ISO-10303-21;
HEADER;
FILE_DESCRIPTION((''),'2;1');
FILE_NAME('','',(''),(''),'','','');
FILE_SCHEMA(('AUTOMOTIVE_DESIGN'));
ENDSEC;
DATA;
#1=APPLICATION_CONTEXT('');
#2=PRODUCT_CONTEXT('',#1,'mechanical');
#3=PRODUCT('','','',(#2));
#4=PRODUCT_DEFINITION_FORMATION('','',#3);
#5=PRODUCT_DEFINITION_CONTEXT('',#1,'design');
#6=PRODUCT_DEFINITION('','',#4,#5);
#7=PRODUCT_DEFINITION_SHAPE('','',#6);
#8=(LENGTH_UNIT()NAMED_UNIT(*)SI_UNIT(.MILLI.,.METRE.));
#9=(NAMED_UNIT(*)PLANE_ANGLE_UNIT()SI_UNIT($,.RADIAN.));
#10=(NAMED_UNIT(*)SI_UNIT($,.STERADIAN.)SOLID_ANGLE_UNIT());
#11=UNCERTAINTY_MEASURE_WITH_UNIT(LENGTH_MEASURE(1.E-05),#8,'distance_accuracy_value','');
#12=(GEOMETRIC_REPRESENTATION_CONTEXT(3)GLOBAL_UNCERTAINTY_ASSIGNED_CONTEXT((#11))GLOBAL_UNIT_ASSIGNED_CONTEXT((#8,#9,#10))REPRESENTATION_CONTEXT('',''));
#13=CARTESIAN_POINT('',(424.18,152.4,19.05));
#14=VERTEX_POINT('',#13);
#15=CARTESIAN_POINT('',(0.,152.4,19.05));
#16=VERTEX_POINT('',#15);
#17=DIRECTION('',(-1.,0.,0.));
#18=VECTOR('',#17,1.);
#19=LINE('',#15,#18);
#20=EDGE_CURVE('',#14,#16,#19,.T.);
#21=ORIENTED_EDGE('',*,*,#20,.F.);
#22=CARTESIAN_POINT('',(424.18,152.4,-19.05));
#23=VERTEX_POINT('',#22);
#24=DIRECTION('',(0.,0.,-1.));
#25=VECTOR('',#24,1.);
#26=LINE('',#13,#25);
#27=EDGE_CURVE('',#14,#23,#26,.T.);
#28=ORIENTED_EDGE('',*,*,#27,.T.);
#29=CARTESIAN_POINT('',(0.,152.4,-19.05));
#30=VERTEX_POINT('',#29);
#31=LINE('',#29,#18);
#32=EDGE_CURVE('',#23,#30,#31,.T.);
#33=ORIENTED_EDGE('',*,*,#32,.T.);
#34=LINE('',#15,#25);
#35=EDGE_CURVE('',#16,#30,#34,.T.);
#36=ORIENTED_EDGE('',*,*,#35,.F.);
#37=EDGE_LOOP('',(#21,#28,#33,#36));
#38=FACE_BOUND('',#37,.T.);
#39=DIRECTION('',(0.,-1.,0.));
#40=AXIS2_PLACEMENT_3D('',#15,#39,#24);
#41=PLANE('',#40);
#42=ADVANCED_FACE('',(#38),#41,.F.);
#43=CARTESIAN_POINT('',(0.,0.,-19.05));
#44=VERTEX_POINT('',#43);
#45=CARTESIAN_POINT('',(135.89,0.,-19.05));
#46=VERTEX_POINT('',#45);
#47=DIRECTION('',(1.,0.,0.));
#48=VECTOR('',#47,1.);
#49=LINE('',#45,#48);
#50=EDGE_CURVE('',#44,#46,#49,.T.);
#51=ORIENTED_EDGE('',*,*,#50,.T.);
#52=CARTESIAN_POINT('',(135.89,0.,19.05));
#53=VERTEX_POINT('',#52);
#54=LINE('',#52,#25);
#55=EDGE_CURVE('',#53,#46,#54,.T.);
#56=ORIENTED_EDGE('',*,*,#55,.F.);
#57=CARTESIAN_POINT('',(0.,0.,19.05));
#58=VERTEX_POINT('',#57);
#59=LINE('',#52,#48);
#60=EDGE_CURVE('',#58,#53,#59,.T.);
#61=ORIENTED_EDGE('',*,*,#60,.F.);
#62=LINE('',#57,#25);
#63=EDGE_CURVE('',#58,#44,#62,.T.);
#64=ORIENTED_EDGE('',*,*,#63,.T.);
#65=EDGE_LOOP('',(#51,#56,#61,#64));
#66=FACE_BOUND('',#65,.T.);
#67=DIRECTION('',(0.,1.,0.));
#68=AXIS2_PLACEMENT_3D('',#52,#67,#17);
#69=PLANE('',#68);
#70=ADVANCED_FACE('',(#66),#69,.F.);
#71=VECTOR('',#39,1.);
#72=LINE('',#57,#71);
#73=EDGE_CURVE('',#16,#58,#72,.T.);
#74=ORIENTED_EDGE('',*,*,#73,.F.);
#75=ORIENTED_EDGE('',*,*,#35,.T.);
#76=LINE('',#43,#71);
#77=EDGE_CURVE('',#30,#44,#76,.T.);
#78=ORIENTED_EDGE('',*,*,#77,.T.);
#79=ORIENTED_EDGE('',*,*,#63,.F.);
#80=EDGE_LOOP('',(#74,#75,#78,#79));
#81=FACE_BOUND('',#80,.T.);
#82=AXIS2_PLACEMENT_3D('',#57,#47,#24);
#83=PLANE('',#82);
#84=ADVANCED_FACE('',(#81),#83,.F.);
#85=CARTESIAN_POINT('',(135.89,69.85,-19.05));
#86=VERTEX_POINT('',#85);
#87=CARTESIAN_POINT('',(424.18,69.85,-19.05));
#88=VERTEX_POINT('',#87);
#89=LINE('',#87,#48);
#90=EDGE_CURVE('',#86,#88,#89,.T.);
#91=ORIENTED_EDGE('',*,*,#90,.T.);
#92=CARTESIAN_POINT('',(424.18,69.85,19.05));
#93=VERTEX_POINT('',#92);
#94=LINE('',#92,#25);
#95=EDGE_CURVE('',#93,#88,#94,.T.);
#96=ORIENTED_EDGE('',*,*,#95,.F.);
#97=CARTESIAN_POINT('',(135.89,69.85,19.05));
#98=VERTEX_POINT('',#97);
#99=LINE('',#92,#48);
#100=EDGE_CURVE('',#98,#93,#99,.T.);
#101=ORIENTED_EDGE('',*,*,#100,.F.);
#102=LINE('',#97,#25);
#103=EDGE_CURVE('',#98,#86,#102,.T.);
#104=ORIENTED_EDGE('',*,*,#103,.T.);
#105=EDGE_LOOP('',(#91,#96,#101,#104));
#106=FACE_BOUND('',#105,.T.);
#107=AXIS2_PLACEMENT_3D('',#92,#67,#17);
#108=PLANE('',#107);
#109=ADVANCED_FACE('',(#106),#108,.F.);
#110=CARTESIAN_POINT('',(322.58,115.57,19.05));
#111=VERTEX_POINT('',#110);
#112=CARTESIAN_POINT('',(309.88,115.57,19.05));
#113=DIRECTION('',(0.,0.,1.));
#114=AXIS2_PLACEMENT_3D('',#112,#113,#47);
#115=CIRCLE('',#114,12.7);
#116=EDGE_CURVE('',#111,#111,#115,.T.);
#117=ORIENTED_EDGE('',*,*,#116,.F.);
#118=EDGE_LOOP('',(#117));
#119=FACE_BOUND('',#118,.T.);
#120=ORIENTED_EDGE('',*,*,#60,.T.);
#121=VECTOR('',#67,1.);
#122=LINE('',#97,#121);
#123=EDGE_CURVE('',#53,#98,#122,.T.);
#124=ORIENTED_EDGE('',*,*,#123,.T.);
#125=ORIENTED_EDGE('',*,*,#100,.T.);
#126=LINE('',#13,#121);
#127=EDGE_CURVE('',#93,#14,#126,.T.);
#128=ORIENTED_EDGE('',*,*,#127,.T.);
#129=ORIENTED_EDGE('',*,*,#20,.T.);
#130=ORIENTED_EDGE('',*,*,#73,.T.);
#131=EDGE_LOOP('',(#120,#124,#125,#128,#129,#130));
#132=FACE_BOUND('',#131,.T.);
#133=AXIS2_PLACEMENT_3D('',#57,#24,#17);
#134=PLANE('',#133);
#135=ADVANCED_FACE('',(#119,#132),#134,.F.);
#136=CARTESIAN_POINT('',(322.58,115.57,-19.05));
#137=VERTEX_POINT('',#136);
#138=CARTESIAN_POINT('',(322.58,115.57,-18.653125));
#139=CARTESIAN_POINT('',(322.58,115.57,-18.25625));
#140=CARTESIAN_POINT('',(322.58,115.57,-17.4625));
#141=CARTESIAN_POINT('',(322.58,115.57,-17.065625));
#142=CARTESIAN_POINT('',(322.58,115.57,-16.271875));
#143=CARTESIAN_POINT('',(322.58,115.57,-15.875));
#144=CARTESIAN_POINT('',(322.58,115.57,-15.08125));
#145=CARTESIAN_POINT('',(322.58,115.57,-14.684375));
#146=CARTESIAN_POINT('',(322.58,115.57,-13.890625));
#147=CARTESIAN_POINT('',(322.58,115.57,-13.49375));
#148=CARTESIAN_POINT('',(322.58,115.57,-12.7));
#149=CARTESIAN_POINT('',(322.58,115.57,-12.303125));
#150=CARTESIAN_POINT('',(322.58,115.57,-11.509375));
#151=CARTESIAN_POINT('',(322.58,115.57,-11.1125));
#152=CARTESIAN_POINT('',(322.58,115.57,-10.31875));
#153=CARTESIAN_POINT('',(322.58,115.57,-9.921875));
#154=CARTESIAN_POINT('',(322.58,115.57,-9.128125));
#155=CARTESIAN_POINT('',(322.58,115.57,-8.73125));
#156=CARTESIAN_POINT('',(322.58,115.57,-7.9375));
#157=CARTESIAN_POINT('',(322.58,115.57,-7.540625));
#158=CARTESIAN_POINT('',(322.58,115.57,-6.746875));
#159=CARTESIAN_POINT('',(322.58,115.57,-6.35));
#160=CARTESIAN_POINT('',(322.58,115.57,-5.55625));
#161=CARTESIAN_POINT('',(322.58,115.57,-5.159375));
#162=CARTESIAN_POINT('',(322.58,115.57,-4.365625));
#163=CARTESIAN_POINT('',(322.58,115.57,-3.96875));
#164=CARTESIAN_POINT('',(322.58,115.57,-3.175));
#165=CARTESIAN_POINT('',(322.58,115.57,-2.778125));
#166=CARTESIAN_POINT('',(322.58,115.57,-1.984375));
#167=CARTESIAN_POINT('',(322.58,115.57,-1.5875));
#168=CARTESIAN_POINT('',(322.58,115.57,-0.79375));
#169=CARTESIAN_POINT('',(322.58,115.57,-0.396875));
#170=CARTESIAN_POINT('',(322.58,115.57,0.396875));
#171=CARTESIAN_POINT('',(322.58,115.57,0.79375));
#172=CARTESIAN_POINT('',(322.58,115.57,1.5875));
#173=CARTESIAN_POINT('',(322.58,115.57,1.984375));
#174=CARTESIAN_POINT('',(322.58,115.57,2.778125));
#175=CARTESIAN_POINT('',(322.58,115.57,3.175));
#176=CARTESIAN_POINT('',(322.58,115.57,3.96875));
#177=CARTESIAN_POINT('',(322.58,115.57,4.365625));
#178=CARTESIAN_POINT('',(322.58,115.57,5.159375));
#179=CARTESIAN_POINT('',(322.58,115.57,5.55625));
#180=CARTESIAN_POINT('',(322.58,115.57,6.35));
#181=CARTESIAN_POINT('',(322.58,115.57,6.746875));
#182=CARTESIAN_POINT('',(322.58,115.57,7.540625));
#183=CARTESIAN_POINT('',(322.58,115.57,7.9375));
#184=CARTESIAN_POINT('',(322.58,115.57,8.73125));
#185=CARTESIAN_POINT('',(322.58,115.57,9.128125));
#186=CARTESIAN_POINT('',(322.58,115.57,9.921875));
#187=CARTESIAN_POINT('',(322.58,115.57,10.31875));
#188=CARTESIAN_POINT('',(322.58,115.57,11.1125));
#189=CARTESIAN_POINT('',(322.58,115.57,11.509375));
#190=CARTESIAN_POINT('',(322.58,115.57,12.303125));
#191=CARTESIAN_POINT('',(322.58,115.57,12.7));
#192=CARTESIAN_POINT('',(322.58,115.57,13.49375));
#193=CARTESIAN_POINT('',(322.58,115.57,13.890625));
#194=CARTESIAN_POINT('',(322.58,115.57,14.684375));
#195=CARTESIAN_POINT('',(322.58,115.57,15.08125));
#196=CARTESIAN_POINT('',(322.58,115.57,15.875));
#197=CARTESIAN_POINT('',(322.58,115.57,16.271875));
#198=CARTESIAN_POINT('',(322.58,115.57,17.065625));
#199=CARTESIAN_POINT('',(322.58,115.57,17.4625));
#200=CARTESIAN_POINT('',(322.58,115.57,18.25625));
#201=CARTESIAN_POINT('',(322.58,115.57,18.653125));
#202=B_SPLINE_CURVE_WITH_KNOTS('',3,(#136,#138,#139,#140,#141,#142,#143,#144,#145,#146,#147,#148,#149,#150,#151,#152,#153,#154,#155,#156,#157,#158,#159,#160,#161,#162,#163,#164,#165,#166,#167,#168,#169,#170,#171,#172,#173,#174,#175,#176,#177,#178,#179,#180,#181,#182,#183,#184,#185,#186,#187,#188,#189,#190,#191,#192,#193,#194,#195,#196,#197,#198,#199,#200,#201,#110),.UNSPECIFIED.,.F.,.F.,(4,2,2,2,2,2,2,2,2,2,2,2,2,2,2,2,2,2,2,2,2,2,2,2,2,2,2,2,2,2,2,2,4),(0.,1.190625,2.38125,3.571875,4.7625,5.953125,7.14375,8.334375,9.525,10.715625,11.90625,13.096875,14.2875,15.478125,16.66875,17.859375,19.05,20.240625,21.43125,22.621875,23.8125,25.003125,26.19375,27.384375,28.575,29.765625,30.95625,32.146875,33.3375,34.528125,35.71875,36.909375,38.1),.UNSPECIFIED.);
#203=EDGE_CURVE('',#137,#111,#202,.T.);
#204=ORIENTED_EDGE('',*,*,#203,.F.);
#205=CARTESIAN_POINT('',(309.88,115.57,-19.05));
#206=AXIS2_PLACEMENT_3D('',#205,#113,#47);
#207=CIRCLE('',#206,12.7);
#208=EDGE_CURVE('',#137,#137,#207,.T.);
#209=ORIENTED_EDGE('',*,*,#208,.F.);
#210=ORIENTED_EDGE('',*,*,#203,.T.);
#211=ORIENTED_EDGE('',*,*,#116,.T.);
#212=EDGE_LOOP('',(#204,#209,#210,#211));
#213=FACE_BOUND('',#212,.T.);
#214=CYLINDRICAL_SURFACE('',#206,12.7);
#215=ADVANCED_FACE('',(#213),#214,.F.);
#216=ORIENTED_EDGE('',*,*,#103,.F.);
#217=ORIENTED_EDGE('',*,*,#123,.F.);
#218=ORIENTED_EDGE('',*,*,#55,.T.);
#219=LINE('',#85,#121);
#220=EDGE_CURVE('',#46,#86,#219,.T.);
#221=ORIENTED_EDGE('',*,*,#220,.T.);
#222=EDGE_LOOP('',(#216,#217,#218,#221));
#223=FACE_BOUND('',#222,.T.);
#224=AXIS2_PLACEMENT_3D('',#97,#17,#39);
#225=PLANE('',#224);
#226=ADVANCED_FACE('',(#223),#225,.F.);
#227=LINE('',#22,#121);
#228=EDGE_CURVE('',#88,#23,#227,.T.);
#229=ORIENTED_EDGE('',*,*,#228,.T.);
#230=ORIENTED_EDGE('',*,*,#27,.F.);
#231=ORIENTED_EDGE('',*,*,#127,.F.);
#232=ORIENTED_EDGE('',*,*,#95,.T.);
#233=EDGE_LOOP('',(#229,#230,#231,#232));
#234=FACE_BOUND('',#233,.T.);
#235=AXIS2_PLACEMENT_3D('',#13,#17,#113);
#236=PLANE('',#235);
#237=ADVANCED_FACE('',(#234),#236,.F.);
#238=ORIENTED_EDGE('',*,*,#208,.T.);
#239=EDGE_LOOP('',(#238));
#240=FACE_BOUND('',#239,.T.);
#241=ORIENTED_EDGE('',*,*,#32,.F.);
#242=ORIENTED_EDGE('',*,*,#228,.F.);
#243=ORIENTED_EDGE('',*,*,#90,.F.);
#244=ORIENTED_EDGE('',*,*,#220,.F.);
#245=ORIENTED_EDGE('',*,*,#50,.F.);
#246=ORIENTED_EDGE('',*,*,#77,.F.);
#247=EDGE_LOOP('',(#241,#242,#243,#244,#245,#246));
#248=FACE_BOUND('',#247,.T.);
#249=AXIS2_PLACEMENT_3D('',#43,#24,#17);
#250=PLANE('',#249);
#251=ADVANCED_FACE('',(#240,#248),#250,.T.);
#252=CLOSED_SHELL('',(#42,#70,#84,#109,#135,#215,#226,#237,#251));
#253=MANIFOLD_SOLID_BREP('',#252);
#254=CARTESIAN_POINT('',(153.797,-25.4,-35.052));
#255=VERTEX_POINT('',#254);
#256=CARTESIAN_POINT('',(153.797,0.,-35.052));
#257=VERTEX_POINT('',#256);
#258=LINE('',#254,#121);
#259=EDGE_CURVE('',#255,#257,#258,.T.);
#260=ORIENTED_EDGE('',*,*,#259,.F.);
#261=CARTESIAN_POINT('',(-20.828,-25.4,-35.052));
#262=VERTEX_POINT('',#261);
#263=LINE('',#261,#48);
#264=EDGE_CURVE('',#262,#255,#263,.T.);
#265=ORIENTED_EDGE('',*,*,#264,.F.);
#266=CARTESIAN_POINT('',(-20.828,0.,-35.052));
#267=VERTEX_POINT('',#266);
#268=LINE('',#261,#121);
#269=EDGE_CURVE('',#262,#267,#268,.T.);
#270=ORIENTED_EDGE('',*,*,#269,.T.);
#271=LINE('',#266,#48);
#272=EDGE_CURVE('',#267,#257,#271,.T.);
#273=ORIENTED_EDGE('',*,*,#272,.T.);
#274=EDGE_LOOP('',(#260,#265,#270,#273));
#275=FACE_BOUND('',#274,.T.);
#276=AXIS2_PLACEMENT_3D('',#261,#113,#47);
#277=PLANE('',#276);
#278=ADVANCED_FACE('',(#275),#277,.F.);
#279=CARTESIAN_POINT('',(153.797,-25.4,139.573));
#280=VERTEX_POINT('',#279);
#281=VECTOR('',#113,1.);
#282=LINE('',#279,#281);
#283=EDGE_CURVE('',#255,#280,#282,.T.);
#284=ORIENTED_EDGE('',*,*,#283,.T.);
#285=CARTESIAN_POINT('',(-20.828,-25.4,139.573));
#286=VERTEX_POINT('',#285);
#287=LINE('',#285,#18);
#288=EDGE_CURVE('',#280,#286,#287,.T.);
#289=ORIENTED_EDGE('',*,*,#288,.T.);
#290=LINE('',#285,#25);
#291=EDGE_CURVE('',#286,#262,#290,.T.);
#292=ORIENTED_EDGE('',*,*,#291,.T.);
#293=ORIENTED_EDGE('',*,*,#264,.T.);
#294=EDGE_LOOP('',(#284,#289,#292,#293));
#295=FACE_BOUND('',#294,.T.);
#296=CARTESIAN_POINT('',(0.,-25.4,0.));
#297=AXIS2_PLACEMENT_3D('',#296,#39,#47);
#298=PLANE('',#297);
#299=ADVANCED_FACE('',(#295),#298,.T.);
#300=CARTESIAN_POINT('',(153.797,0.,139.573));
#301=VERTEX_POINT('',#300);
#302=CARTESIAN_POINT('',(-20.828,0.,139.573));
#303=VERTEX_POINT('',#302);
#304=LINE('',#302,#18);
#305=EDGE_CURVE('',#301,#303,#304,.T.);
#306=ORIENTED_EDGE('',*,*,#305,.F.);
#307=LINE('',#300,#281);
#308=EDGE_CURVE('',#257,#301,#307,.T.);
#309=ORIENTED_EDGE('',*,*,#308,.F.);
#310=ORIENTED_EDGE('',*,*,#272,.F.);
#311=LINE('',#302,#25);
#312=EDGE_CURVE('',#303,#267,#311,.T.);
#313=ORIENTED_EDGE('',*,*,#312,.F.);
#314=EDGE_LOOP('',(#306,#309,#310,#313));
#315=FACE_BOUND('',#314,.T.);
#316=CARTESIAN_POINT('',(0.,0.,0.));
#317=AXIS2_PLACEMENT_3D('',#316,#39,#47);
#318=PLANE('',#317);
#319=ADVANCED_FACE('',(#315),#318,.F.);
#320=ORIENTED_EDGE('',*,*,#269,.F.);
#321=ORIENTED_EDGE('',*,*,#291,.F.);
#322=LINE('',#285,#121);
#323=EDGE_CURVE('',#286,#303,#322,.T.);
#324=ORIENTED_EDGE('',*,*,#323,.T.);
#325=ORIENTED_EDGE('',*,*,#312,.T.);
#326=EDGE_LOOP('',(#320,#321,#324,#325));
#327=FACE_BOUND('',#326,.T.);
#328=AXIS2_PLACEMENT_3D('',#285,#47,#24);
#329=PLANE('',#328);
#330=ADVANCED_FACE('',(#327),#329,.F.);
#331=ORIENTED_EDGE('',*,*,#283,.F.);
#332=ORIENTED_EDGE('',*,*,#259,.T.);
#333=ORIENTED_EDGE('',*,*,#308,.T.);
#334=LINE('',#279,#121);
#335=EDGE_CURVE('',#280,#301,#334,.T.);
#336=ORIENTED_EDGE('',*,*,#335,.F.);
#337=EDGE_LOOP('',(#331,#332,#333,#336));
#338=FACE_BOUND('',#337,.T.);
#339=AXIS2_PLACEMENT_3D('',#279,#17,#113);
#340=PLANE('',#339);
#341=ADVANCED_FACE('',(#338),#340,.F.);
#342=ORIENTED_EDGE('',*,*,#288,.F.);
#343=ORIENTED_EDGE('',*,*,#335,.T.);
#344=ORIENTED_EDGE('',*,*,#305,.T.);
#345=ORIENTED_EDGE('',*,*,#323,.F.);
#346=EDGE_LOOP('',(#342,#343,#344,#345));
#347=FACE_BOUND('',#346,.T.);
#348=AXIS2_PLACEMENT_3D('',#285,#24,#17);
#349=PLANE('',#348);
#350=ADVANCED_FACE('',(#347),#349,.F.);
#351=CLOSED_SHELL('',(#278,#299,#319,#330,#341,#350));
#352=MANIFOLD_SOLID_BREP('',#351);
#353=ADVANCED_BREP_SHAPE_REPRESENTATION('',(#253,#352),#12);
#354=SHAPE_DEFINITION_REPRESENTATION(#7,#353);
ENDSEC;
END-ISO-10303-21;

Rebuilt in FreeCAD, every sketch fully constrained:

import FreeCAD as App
import Part
import Sketcher
Q = App.Units.Quantity

doc = App.newDocument("Part")
body = doc.addObject("PartDesign::Body", "Body")

sketch1 = body.newObject("Sketcher::SketchObject", "Sketch")
sketch1.AttachmentSupport = (doc.getObject("XY_Plane"), [""])
sketch1.MapMode = "FlatFace"
sketch1.addGeometry(Part.LineSegment(App.Vector(0, 152.4, 0), App.Vector(0, 0, 0)), False)
sketch1.addGeometry(Part.LineSegment(App.Vector(0, 0, 0), App.Vector(135.89, 0, 0)), False)
sketch1.addGeometry(Part.LineSegment(App.Vector(135.89, 0, 0), App.Vector(135.89, 69.85, 0)), False)
sketch1.addGeometry(Part.LineSegment(App.Vector(135.89, 69.85, 0), App.Vector(424.18, 69.85, 0)), False)
sketch1.addGeometry(Part.LineSegment(App.Vector(424.18, 69.85, 0), App.Vector(424.18, 152.4, 0)), False)
sketch1.addGeometry(Part.LineSegment(App.Vector(424.18, 152.4, 0), App.Vector(0, 152.4, 0)), False)
sketch1.addConstraint(Sketcher.Constraint("Coincident", 0, 2, 1, 1))
sketch1.addConstraint(Sketcher.Constraint("Coincident", 1, 2, 2, 1))
sketch1.addConstraint(Sketcher.Constraint("Coincident", 2, 2, 3, 1))
sketch1.addConstraint(Sketcher.Constraint("Coincident", 3, 2, 4, 1))
sketch1.addConstraint(Sketcher.Constraint("Coincident", 4, 2, 5, 1))
sketch1.addConstraint(Sketcher.Constraint("Coincident", 5, 2, 0, 1))
sketch1.addConstraint(Sketcher.Constraint("Vertical", 0))
sketch1.addConstraint(Sketcher.Constraint("Horizontal", 1))
sketch1.addConstraint(Sketcher.Constraint("Vertical", 2))
sketch1.addConstraint(Sketcher.Constraint("Horizontal", 3))
sketch1.addConstraint(Sketcher.Constraint("Vertical", 4))
sketch1.addConstraint(Sketcher.Constraint("Horizontal", 5))
sketch1.addConstraint(Sketcher.Constraint("Coincident", 0, 2, -1, 1))
sketch1.addConstraint(Sketcher.Constraint("DistanceY", 0, 2, 0, 1, Q("6 in")))
sketch1.addConstraint(Sketcher.Constraint("DistanceX", 5, 2, 5, 1, Q("16.7 in")))
sketch1.addConstraint(Sketcher.Constraint("DistanceX", 1, 1, 1, 2, Q("5.35 in")))
sketch1.addConstraint(Sketcher.Constraint("DistanceY", 2, 1, 2, 2, Q("2.75 in")))
pad1 = body.newObject("PartDesign::Pad", "Pad")
pad1.Profile = sketch1
pad1.Length = Q("1.5 in")
pad1.Midplane = True

sketch2 = body.newObject("Sketcher::SketchObject", "Sketch001")
sketch2.AttachmentSupport = (doc.getObject("XY_Plane"), [""])
sketch2.MapMode = "FlatFace"
sketch2.AttachmentOffset = App.Placement(App.Vector(0, 0, 0.75 * 25.4), App.Rotation())
sketch2.addGeometry(Part.Circle(App.Vector(309.88, 115.57, 0), App.Vector(0, 0, 1), 12.7), False)
sketch2.addConstraint(Sketcher.Constraint("Diameter", 0, Q("1 in")))
sketch2.addConstraint(Sketcher.Constraint("DistanceX", -1, 1, 0, 3, Q("12.2 in")))
sketch2.addConstraint(Sketcher.Constraint("DistanceY", -1, 1, 0, 3, Q("4.55 in")))
pocket1 = body.newObject("PartDesign::Pocket", "Pocket")
pocket1.Profile = sketch2
pocket1.Type = "ThroughAll"
body2 = doc.addObject("PartDesign::Body", "Body001")

sketch3 = body2.newObject("Sketcher::SketchObject", "Sketch002")
sketch3.AttachmentSupport = (doc.getObject("XZ_Plane001"), [""])
sketch3.MapMode = "FlatFace"
sketch3.addGeometry(Part.LineSegment(App.Vector(-20.828, 139.573, 0), App.Vector(-20.828, -35.052, 0)), False)
sketch3.addGeometry(Part.LineSegment(App.Vector(-20.828, -35.052, 0), App.Vector(153.797, -35.052, 0)), False)
sketch3.addGeometry(Part.LineSegment(App.Vector(153.797, -35.052, 0), App.Vector(153.797, 139.573, 0)), False)
sketch3.addGeometry(Part.LineSegment(App.Vector(153.797, 139.573, 0), App.Vector(-20.828, 139.573, 0)), False)
sketch3.addConstraint(Sketcher.Constraint("Coincident", 0, 2, 1, 1))
sketch3.addConstraint(Sketcher.Constraint("Coincident", 1, 2, 2, 1))
sketch3.addConstraint(Sketcher.Constraint("Coincident", 2, 2, 3, 1))
sketch3.addConstraint(Sketcher.Constraint("Coincident", 3, 2, 0, 1))
sketch3.addConstraint(Sketcher.Constraint("Vertical", 0))
sketch3.addConstraint(Sketcher.Constraint("Horizontal", 1))
sketch3.addConstraint(Sketcher.Constraint("Vertical", 2))
sketch3.addConstraint(Sketcher.Constraint("Horizontal", 3))
sketch3.addConstraint(Sketcher.Constraint("Equal", 3, 0))
sketch3.addConstraint(Sketcher.Constraint("DistanceX", 1, 1, 1, 2, Q("6.875 in")))
sketch3.addConstraint(Sketcher.Constraint("DistanceX", 0, 2, -1, 1, Q("0.82 in")))
sketch3.addConstraint(Sketcher.Constraint("DistanceY", 0, 2, -1, 1, Q("1.38 in")))
pad2 = body2.newObject("PartDesign::Pad", "Pad001")
pad2.Profile = sketch3
pad2.Length = Q("1 in")

doc.recompute()
